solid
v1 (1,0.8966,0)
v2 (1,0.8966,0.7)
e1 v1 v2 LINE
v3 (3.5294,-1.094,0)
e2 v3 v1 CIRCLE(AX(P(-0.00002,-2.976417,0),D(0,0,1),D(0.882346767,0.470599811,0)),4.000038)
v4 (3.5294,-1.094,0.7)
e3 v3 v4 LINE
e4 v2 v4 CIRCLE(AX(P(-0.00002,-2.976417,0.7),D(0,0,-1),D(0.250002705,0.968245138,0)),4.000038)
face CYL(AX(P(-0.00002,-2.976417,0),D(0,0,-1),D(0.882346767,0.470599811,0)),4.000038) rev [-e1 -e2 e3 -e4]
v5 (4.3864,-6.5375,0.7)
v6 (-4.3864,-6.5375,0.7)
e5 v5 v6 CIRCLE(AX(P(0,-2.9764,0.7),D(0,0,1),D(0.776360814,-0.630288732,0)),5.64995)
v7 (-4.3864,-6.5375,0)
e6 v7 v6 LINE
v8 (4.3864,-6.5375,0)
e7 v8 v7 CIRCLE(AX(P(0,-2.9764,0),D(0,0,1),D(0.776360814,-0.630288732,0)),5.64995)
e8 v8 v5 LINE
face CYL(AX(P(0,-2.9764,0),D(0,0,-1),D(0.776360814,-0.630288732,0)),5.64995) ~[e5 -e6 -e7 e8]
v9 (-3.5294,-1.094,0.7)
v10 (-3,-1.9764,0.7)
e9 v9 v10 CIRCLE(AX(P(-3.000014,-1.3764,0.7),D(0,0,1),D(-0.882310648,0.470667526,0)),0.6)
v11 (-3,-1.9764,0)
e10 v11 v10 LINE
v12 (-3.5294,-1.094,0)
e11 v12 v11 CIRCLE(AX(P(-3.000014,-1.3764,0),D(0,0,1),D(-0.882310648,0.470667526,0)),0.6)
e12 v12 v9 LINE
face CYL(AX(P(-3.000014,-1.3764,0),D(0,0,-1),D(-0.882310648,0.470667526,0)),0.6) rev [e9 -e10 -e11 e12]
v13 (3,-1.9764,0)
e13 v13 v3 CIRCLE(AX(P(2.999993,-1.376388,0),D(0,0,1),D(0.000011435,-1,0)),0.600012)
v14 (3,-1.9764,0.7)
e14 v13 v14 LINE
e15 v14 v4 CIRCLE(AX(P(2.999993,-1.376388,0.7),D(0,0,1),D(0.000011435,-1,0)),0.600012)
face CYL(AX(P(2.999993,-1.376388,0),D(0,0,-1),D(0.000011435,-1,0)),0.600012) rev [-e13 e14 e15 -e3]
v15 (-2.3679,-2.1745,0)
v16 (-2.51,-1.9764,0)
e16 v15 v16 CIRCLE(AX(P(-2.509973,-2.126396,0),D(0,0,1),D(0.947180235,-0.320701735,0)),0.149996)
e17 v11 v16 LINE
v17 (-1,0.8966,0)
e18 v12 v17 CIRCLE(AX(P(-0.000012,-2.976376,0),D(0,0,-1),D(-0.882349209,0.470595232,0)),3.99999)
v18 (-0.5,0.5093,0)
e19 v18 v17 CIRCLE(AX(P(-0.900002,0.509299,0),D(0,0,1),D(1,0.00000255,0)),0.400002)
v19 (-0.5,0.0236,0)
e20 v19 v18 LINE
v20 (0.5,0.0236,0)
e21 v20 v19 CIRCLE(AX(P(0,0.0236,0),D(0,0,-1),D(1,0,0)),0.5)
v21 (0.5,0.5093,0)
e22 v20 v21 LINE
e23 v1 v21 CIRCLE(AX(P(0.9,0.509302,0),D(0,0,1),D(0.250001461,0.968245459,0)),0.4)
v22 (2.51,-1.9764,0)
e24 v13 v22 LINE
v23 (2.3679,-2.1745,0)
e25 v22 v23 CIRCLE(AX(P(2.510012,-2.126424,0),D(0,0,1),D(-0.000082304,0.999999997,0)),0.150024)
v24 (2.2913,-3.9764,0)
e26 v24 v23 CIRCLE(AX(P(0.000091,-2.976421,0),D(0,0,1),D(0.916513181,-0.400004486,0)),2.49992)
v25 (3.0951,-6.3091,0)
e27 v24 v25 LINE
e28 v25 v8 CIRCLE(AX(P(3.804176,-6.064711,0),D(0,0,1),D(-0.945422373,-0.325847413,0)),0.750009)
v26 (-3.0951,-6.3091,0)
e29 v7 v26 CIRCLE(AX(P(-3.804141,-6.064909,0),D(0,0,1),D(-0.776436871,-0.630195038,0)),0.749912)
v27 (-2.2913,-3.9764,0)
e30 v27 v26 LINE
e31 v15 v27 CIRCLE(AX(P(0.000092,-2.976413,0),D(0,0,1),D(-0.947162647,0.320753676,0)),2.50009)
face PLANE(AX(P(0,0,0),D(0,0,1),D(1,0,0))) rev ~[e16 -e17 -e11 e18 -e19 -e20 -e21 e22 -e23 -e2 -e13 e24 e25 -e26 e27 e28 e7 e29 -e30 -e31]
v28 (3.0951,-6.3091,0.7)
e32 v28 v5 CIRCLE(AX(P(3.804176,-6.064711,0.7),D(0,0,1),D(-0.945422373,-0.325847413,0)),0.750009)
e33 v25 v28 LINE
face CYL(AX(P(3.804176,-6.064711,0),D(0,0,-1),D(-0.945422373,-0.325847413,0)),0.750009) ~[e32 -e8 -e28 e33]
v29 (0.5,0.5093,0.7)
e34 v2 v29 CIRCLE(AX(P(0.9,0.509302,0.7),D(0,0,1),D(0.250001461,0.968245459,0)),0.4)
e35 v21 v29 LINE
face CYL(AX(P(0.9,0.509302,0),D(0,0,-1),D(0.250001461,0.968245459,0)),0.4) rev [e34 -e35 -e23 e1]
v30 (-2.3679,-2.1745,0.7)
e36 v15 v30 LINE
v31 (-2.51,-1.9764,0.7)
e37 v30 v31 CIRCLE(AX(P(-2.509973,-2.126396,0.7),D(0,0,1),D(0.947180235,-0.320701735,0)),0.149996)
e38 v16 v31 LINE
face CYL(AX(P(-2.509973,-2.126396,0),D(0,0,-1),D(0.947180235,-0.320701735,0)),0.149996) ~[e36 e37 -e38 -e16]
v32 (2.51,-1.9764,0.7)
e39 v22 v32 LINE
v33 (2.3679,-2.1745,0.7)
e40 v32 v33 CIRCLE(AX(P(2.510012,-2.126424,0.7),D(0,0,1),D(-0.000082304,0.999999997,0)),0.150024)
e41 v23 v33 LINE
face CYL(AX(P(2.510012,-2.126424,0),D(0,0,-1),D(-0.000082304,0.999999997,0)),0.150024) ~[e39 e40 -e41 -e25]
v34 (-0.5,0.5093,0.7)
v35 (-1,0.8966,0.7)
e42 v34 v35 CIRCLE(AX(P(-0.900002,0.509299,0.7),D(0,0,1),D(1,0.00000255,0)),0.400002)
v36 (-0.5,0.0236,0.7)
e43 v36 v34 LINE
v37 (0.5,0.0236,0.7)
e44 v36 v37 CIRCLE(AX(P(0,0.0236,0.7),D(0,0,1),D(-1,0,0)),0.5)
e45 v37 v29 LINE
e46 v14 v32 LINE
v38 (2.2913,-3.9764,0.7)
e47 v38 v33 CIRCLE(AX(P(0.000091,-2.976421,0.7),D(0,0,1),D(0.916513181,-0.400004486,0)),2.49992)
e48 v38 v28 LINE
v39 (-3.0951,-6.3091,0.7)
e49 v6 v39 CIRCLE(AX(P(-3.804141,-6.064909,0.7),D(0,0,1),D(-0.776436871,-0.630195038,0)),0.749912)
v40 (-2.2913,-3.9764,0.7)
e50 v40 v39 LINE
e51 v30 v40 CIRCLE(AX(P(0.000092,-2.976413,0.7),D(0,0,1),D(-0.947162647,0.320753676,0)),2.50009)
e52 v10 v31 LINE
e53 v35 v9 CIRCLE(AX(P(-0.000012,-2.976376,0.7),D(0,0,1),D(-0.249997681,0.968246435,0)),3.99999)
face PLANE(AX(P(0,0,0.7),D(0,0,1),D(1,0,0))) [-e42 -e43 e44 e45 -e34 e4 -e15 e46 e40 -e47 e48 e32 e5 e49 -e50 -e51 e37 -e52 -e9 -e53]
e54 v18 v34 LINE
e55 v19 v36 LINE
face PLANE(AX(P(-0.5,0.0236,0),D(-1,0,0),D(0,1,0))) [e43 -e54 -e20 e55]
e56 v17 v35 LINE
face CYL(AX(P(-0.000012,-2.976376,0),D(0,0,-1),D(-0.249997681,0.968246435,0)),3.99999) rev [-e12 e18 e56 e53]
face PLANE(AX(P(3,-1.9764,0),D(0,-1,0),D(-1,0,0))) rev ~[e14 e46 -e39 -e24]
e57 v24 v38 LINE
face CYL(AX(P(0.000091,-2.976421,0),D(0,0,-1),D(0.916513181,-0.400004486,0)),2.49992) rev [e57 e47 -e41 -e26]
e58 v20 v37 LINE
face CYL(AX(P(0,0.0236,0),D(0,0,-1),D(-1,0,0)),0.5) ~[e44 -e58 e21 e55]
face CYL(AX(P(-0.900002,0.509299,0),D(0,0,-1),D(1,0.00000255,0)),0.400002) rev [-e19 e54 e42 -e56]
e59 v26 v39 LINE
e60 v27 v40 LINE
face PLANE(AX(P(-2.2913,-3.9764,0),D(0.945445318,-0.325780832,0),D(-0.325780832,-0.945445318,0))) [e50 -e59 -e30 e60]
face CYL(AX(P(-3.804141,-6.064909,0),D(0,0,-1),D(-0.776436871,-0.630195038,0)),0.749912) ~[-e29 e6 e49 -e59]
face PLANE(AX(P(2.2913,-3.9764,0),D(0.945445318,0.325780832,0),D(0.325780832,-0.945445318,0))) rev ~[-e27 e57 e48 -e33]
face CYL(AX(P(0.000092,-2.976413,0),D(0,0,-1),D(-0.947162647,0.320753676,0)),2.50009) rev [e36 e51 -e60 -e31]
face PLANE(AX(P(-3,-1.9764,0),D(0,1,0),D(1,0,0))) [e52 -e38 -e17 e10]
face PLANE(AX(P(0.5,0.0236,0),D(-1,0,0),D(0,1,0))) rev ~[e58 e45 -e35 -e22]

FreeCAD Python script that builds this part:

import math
import FreeCAD as App
import Part
import Sketcher

doc = App.newDocument("Part")
body = doc.addObject("PartDesign::Body", "Body")

# Sketch on XY plane
sketch1 = body.newObject("Sketcher::SketchObject", "Sketch")
sketch1.AttachmentSupport = (doc.getObject("XY_Plane"), [""])
sketch1.MapMode = "FlatFace"
sketch1.addGeometry([
    Part.ArcOfCircle(Part.Circle(App.Vector(0, -2.9764, 0), App.Vector(0, 0, 1), 4.000012), math.radians(104.477453), math.radians(151.926839)),  # 0
    Part.ArcOfCircle(Part.Circle(App.Vector(-0.9, 0.5093, 0), App.Vector(0, 0, 1), 0.4), math.radians(0), math.radians(104.477453)),  # 1
    Part.LineSegment(App.Vector(-0.5, 0.5093, 0), App.Vector(-0.5, 0.0236, 0)),  # 2
    Part.ArcOfCircle(Part.Circle(App.Vector(0, 0.0236, 0), App.Vector(0, 0, 1), 0.5), math.radians(180), math.radians(360)),  # 3
    Part.LineSegment(App.Vector(0.5, 0.0236, 0), App.Vector(0.5, 0.5093, 0)),  # 4
    Part.ArcOfCircle(Part.Circle(App.Vector(0.9, 0.5093, 0), App.Vector(0, 0, 1), 0.400002), math.radians(75.522547), math.radians(180)),  # 5
    Part.ArcOfCircle(Part.Circle(App.Vector(0, -2.9764, 0), App.Vector(0, 0, 1), 4.000016), math.radians(28.073161), math.radians(75.522547)),  # 6
    Part.ArcOfCircle(Part.Circle(App.Vector(3, -1.3764, 0), App.Vector(0, 0, 1), 0.6), math.radians(-90), math.radians(28.076981)),  # 7
    Part.LineSegment(App.Vector(3, -1.9764, 0), App.Vector(2.51, -1.9764, 0)),  # 8
    Part.ArcOfCircle(Part.Circle(App.Vector(2.51, -2.1264, 0), App.Vector(0, 0, 1), 0.15), math.radians(90), math.radians(198.700652)),  # 9
    Part.ArcOfCircle(Part.Circle(App.Vector(0, -2.9764, 0), App.Vector(0, 0, 1), 2.499999), math.radians(-23.578067), math.radians(18.708902)),  # 10
    Part.LineSegment(App.Vector(2.2913, -3.9764, 0), App.Vector(3.0951, -6.3091, 0)),  # 11
    Part.ArcOfCircle(Part.Circle(App.Vector(3.8041, -6.0648, 0), App.Vector(0, 0, 1), 0.749909), math.radians(-160.987595), math.radians(-39.069031)),  # 12
    Part.ArcOfCircle(Part.Circle(App.Vector(0, -2.9764, 0), App.Vector(0, 0, 1), 5.64995), math.radians(-39.071428), math.radians(219.071428)),  # 13
    Part.ArcOfCircle(Part.Circle(App.Vector(-3.8041, -6.0648, 0), App.Vector(0, 0, 1), 0.750012), math.radians(-140.930969), math.radians(-19.012405)),  # 14
    Part.LineSegment(App.Vector(-3.0951, -6.3091, 0), App.Vector(-2.2913, -3.9764, 0)),  # 15
    Part.ArcOfCircle(Part.Circle(App.Vector(0, -2.9764, 0), App.Vector(0, 0, 1), 2.500011), math.radians(161.291098), math.radians(203.578067)),  # 16
    Part.ArcOfCircle(Part.Circle(App.Vector(-2.51, -2.1264, 0), App.Vector(0, 0, 1), 0.15002), math.radians(-18.700652), math.radians(90)),  # 17
    Part.LineSegment(App.Vector(-2.51, -1.9764, 0), App.Vector(-3, -1.9764, 0)),  # 18
    Part.ArcOfCircle(Part.Circle(App.Vector(-3, -1.3764, 0), App.Vector(0, 0, 1), 0.600012), math.radians(151.923019), math.radians(270)),  # 19
], False)
sketch1.addConstraint([
    Sketcher.Constraint("Tangent", 0, 1, 1, 2),
    Sketcher.Constraint("Tangent", 1, 1, 2, 1),
    Sketcher.Constraint("Tangent", 2, 2, 3, 1),
    Sketcher.Constraint("Tangent", 3, 2, 4, 1),
    Sketcher.Constraint("Tangent", 4, 2, 5, 2),
    Sketcher.Constraint("Tangent", 5, 1, 6, 2),
    Sketcher.Constraint("Tangent", 6, 1, 7, 2),
    Sketcher.Constraint("Tangent", 7, 1, 8, 1),
    Sketcher.Constraint("Tangent", 8, 2, 9, 1),
    Sketcher.Constraint("Tangent", 9, 2, 10, 2),
    Sketcher.Constraint("Coincident", 10, 1, 11, 1),
    Sketcher.Constraint("Tangent", 11, 2, 12, 1),
    Sketcher.Constraint("Tangent", 12, 2, 13, 1),
    Sketcher.Constraint("Tangent", 13, 2, 14, 1),
    Sketcher.Constraint("Tangent", 14, 2, 15, 1),
    Sketcher.Constraint("Coincident", 15, 2, 16, 2),
    Sketcher.Constraint("Tangent", 16, 1, 17, 1),
    Sketcher.Constraint("Tangent", 17, 2, 18, 1),
    Sketcher.Constraint("Tangent", 18, 2, 19, 2),
    Sketcher.Constraint("Tangent", 19, 1, 0, 2),
    Sketcher.Constraint("Vertical", 2),
    Sketcher.Constraint("Vertical", 4),
    Sketcher.Constraint("Horizontal", 8),
    Sketcher.Constraint("Horizontal", 18),
    Sketcher.Constraint("Coincident", 6, 3, 0, 3),
    Sketcher.Constraint("Coincident", 10, 3, 0, 3),
    Sketcher.Constraint("Coincident", 13, 3, 0, 3),
    Sketcher.Constraint("Coincident", 16, 3, 0, 3),
    Sketcher.Constraint("Equal", 1, 5),
    Sketcher.Constraint("Equal", 0, 6),
    Sketcher.Constraint("Equal", 12, 14),
    Sketcher.Constraint("Equal", 10, 16),
    Sketcher.Constraint("Equal", 9, 17),
    Sketcher.Constraint("Equal", 7, 19),
    Sketcher.Constraint("Symmetric", 1, 3, 5, 3, -2),
    Sketcher.Constraint("Symmetric", 11, 2, 14, 2, -2),
    Sketcher.Constraint("Horizontal", 9, 3, 17, 3),
    Sketcher.Constraint("Radius", 0, 4.0),
    Sketcher.Constraint("Radius", 1, 0.4),
    Sketcher.Constraint("Radius", 3, 0.5),
    Sketcher.Constraint("Radius", 7, 0.6),
    Sketcher.Constraint("Radius", 10, 2.5),
    Sketcher.Constraint("Radius", 9, 0.15),
    Sketcher.Constraint("Radius", 12, 0.75),
    Sketcher.Constraint("Radius", 13, 5.65),
    Sketcher.Constraint("DistanceY", 0, 3, 7, 1, 1.0),
    Sketcher.Constraint("DistanceY", 10, 1, 0, 3, 1.0),
    Sketcher.Constraint("DistanceY", 0, 3, 3, 3, 3.0),
    Sketcher.Constraint("DistanceX", -1, 1, 12, 3, 3.804),
    Sketcher.Constraint("DistanceY", 6, 1, -1, 1, 1.094),
])
pad1 = body.newObject("PartDesign::Pad", "Pad")
pad1.Profile = sketch1
pad1.Length = 0.7

doc.recompute()
